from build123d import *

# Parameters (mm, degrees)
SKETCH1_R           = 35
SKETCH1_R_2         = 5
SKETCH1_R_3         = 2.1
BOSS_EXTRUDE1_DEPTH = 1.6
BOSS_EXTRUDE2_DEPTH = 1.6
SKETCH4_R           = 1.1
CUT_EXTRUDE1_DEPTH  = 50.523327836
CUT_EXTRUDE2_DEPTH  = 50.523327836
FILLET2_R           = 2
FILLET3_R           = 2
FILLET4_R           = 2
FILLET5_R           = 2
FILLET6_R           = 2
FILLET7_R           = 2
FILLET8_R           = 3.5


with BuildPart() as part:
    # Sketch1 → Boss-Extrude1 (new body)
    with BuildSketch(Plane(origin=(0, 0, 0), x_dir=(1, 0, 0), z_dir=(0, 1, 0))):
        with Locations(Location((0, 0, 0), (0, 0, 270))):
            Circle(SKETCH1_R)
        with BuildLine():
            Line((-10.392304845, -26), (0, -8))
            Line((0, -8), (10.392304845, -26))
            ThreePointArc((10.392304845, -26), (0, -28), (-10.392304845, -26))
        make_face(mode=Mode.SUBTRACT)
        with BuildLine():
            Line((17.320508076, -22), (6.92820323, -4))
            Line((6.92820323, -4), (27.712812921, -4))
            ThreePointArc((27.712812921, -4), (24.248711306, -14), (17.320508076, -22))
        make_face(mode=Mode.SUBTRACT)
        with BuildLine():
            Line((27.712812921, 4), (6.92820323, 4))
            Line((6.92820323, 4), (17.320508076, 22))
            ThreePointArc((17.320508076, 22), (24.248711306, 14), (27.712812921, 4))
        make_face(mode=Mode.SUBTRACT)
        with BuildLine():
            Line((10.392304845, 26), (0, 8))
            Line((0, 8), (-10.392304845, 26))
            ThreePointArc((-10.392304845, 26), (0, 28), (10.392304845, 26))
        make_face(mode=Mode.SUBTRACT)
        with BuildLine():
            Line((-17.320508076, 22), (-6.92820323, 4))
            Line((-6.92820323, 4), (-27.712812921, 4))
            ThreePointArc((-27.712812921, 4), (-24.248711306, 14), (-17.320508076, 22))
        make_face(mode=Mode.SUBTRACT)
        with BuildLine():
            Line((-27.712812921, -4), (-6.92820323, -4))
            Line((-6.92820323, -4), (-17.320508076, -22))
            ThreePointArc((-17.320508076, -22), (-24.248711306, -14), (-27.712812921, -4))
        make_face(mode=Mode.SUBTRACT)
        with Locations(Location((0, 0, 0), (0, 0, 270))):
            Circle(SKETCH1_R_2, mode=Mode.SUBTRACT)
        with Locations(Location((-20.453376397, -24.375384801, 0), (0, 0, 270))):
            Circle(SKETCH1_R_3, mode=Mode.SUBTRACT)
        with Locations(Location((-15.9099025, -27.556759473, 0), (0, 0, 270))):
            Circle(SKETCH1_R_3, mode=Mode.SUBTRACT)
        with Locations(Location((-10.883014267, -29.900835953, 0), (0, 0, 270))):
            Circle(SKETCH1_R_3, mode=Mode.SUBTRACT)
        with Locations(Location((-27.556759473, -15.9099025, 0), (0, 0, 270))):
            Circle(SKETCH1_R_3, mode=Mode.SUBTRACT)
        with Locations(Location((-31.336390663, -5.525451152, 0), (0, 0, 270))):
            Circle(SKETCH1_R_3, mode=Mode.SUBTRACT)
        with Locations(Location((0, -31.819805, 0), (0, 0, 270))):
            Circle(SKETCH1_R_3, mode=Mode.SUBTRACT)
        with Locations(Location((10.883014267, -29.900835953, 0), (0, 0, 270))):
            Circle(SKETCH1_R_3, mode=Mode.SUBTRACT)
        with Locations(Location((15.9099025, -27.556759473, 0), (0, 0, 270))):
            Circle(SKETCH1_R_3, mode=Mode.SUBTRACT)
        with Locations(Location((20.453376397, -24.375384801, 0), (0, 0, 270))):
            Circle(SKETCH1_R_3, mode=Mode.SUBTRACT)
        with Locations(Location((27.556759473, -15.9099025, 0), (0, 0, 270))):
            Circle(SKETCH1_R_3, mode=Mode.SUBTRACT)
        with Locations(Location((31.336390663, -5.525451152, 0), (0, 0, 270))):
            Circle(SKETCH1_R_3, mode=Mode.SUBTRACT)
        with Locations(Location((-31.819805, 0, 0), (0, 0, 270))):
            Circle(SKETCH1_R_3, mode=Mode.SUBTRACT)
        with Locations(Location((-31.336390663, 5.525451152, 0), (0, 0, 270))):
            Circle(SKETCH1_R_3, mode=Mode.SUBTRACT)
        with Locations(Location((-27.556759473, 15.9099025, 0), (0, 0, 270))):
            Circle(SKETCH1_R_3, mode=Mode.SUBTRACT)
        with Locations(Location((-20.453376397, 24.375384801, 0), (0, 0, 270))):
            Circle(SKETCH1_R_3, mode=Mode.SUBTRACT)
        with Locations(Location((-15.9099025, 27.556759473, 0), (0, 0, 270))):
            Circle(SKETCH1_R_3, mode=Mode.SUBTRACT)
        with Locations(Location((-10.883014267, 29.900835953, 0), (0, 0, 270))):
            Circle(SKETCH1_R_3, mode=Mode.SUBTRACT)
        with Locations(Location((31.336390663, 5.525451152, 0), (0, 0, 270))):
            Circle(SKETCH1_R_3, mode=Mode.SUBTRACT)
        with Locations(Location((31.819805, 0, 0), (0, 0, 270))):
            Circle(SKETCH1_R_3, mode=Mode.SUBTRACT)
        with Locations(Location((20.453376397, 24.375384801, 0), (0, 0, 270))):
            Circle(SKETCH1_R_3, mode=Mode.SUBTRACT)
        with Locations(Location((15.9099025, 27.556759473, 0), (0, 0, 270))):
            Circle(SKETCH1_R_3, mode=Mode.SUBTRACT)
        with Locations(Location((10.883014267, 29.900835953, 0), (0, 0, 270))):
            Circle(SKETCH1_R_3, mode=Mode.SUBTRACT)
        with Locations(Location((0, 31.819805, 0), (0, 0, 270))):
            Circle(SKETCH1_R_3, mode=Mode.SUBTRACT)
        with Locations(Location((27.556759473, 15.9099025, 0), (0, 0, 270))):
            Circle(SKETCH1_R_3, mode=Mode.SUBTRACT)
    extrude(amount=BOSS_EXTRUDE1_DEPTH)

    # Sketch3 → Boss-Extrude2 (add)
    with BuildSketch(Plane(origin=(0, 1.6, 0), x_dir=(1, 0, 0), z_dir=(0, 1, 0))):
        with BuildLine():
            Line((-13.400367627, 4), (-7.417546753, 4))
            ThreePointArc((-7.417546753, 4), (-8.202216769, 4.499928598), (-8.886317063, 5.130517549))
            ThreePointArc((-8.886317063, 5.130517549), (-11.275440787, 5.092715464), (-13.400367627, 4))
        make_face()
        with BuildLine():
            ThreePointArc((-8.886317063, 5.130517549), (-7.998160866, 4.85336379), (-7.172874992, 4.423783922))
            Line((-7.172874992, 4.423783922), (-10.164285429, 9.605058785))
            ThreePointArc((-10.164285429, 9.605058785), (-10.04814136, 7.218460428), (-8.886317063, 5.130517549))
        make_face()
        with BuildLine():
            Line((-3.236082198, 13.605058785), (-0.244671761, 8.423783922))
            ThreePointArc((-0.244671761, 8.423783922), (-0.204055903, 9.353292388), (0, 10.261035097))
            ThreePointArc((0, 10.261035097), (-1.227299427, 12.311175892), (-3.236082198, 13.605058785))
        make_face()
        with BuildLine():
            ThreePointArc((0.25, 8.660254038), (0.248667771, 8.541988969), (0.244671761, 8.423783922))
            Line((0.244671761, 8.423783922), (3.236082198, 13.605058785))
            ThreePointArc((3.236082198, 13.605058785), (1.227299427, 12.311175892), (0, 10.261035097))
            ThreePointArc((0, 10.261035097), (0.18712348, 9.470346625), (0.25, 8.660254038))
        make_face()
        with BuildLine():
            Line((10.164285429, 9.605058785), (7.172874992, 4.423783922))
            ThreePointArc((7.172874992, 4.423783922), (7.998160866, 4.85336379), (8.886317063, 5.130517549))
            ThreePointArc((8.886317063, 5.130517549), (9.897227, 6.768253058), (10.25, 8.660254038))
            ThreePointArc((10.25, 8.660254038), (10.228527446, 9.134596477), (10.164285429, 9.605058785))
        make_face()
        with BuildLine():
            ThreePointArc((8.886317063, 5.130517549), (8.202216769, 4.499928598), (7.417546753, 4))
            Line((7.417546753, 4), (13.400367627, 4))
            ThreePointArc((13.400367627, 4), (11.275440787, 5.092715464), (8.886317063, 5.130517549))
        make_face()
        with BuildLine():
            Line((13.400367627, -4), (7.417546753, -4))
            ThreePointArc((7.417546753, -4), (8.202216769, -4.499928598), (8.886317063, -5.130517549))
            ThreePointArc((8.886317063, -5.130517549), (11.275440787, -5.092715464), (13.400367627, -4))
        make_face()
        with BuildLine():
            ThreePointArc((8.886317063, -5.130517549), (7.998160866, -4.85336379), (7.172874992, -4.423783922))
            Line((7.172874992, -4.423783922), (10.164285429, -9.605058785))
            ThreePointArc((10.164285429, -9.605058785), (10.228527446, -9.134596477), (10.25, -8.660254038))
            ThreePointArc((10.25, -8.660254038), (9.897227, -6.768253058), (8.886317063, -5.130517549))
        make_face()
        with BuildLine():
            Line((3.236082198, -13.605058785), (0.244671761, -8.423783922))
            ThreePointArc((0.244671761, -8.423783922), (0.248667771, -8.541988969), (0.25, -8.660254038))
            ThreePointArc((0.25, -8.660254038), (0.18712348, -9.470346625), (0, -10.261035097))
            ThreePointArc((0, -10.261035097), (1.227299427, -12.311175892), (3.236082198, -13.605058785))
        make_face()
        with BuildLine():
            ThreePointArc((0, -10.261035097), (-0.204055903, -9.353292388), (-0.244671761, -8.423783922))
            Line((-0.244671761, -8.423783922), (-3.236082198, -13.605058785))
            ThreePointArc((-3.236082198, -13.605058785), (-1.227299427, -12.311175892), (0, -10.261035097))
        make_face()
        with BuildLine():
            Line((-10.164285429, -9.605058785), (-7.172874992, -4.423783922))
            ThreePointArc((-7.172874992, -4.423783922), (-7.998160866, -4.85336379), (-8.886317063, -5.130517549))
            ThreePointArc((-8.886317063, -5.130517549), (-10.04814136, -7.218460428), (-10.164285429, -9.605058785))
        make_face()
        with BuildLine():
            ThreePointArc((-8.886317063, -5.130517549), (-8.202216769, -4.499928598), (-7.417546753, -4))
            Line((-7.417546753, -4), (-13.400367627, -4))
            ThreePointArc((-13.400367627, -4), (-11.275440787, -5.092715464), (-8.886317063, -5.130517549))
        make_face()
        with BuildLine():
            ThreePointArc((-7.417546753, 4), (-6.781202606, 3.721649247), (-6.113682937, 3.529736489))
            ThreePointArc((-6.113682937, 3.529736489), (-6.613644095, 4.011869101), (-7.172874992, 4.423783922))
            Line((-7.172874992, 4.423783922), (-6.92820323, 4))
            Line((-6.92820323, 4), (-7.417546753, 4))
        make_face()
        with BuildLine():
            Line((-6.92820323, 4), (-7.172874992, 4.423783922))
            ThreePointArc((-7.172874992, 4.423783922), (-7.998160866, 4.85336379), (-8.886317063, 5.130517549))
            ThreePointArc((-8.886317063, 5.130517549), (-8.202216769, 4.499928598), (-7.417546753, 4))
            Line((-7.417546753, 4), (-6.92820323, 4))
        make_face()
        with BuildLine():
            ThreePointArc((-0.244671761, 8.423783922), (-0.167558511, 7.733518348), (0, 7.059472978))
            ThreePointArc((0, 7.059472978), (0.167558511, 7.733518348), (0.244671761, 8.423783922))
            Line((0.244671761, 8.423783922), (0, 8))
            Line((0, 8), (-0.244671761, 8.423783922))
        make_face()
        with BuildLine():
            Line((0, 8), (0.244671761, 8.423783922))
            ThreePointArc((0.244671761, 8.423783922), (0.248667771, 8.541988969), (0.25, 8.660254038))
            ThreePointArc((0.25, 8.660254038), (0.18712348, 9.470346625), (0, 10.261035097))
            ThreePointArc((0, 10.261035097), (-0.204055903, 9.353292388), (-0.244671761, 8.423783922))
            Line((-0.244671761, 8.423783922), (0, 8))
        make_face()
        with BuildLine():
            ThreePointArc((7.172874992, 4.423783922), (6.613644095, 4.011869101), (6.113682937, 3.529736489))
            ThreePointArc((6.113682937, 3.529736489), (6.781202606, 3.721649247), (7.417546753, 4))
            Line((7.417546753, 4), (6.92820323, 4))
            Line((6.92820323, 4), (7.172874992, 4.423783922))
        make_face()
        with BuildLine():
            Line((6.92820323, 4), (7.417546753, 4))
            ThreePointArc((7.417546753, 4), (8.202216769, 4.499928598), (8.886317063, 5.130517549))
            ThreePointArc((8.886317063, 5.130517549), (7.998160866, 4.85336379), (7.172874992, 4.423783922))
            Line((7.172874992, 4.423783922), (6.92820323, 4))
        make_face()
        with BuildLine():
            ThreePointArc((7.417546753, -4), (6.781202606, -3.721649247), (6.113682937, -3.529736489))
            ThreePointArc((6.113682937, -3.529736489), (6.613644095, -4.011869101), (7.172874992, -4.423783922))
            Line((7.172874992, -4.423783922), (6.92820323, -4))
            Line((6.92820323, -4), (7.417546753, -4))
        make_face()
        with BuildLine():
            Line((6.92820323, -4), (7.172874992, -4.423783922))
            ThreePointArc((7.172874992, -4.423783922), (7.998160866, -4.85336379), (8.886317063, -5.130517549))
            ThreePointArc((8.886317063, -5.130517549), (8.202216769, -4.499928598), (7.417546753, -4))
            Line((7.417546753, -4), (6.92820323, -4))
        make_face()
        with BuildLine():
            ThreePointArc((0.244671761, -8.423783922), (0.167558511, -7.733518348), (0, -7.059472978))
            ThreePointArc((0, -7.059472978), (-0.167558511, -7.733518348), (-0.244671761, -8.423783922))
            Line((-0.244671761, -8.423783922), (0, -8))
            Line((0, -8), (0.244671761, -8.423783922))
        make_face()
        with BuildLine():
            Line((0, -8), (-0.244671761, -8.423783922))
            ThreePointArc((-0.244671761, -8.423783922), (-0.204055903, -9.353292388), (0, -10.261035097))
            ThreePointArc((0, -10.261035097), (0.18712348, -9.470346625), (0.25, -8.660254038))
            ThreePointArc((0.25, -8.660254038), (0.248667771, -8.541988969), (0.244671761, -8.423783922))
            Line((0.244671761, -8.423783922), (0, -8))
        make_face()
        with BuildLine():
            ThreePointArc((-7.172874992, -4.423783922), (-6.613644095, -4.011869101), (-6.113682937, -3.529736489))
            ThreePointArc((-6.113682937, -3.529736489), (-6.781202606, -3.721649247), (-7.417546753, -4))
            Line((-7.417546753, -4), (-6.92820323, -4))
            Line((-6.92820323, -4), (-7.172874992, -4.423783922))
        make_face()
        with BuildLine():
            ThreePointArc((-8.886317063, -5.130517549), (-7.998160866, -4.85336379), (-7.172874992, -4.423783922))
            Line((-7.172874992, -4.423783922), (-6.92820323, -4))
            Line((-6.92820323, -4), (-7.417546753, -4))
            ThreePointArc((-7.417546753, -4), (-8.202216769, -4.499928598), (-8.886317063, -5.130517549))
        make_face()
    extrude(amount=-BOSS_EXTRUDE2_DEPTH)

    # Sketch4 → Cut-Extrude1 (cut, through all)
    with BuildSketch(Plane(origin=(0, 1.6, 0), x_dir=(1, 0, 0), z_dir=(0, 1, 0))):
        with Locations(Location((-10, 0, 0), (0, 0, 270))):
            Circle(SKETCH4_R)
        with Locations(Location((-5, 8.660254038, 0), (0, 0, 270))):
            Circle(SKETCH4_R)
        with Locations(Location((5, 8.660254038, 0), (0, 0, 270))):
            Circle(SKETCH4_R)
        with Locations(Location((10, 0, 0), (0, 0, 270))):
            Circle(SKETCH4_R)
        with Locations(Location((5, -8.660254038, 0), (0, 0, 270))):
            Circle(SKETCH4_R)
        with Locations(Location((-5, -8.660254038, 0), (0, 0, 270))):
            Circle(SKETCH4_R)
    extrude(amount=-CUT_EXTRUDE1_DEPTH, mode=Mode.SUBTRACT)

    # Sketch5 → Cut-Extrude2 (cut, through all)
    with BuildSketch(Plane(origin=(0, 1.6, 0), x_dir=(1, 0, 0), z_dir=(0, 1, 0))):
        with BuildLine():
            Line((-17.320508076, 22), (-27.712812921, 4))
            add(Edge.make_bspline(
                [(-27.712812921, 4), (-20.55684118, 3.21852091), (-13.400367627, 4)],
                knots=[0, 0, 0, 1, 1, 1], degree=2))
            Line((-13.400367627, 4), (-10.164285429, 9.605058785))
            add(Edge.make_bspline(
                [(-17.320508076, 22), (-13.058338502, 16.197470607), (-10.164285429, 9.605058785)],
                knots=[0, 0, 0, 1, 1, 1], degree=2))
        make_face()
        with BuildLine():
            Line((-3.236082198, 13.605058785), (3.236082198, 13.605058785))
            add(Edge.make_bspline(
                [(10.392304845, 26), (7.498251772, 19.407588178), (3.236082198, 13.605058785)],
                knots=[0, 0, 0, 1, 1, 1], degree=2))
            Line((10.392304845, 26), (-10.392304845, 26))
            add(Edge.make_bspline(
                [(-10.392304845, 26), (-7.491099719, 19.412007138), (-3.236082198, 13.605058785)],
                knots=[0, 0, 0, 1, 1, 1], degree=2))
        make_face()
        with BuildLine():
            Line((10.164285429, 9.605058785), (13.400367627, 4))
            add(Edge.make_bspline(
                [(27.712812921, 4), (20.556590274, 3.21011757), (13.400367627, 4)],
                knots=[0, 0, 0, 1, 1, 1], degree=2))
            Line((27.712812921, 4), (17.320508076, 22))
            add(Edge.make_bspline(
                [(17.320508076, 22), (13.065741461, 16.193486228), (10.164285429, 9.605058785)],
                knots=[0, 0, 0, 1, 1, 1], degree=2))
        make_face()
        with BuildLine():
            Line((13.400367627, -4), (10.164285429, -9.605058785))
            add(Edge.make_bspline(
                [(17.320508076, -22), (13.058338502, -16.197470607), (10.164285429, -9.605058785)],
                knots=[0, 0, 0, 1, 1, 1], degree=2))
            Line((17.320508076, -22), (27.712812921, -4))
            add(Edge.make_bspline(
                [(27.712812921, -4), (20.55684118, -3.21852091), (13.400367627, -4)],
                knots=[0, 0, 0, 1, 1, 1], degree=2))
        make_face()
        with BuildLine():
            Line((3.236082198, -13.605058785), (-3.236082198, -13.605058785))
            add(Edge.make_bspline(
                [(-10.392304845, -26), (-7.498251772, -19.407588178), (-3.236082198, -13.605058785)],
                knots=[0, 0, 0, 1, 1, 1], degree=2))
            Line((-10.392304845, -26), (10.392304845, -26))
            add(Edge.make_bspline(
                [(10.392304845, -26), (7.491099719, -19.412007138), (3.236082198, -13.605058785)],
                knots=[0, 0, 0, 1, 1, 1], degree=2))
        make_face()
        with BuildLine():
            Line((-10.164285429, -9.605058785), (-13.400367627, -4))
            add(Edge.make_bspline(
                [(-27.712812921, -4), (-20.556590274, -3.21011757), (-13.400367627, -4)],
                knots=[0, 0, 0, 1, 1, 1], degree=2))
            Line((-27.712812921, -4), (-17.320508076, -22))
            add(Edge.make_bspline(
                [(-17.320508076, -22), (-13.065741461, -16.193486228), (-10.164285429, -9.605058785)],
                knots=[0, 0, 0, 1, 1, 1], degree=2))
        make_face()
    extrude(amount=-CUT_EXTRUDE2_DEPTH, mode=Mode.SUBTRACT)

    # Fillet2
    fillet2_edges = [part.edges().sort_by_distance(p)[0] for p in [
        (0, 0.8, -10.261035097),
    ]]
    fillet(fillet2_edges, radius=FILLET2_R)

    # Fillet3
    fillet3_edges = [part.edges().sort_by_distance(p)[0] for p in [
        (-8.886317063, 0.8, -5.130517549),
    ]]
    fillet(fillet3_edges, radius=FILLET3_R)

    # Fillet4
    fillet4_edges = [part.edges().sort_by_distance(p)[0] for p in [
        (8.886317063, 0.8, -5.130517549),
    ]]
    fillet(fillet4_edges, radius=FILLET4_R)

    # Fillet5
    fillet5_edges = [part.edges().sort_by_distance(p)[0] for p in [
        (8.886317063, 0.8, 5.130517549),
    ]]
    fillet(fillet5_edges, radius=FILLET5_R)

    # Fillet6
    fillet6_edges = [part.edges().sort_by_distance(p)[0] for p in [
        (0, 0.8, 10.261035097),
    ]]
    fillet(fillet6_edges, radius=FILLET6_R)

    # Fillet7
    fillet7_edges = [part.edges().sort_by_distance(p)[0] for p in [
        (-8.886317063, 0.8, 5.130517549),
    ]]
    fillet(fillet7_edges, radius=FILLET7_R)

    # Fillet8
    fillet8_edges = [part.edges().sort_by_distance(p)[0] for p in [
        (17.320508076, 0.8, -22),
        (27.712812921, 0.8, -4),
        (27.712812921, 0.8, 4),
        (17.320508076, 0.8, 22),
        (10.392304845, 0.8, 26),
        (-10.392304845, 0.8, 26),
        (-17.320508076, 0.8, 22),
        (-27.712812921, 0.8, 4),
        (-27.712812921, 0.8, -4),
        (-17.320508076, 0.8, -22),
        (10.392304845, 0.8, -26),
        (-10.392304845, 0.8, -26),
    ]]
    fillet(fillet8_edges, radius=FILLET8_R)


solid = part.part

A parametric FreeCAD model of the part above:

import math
import FreeCAD as App
import Part
import Sketcher
from FreeCAD import Vector
Q = App.Units.Quantity


def edges_at(feature, points):
    """Names of the edges that pass closest to the given points."""
    edges = feature.Shape.Edges
    near = lambda p: min(range(len(edges)), key=lambda i: edges[i].distToShape(Part.Vertex(*p))[0])
    return sorted({f"Edge{near(p) + 1}" for p in points})

doc = App.newDocument("Part")
params = doc.addObject("Spreadsheet::Sheet", "Params")
for row, (alias, value) in enumerate([
    ("sketch1_diameter", "70 mm"),
    ("sketch1_diameter2", "10 mm"),
    ("sketch1_radius", "28 mm"),
    ("sketch1_diameter3", "4.2 mm"),
    ("pad1_length", "1.6 mm"),
    ("sketch2_radius", "5.25 mm"),
    ("pad2_length", "1.6 mm"),
    ("sketch3_diameter", "2.2 mm"),
    ("fillet_radius", "2 mm"),
    ("fillet2_radius", "2 mm"),
    ("fillet3_radius", "2 mm"),
    ("fillet4_radius", "2 mm"),
    ("fillet5_radius", "2 mm"),
    ("fillet6_radius", "2 mm"),
    ("fillet7_radius", "3.5 mm"),
], start=1):
    params.set(f"A{row}", alias)
    params.set(f"B{row}", "=" + value)
    params.setAlias(f"B{row}", alias)

body = doc.addObject("PartDesign::Body", "Body")

# Sketch on XZ plane
sketch1 = body.newObject("Sketcher::SketchObject", "Sketch")
sketch1.AttachmentSupport = (doc.getObject("XZ_Plane"), [""])
sketch1.MapMode = "FlatFace"
sketch1.addGeometry([
    Part.Circle(Vector(0, 0, 0), Vector(0, 0, 1), 35),  # 0
    Part.Circle(Vector(-20.5, -24.4, 0), Vector(0, 0, 1), 2.1),  # 1
    Part.Circle(Vector(-27.6, -15.9, 0), Vector(0, 0, 1), 2.1),  # 2
    Part.Circle(Vector(-31.3, -5.5, 0), Vector(0, 0, 1), 2.1),  # 3
    Part.ArcOfCircle(Part.Circle(Vector(0, 0, 0), Vector(0, 0, 1), 28), math.radians(-172), math.radians(-128)),  # 4
    Part.LineSegment(Vector(-17.3, -22, 0), Vector(-6.9, -4, 0)),  # 5
    Part.LineSegment(Vector(-6.9, -4, 0), Vector(-27.7, -4, 0)),  # 6
    Part.Circle(Vector(-15.9, -27.6, 0), Vector(0, 0, 1), 2.1),  # 7
    Part.Circle(Vector(-10.9, -29.9, 0), Vector(0, 0, 1), 2.1),  # 8
    Part.Circle(Vector(-31.8, 0, 0), Vector(0, 0, 1), 2.1),  # 9
    Part.Circle(Vector(-31.3, 5.5, 0), Vector(0, 0, 1), 2.1),  # 10
    Part.Circle(Vector(-27.6, 15.9, 0), Vector(0, 0, 1), 2.1),  # 11
    Part.ArcOfCircle(Part.Circle(Vector(0, 0, 0), Vector(0, 0, 1), 28), math.radians(128), math.radians(172)),  # 12
    Part.LineSegment(Vector(-27.7, 4, 0), Vector(-6.9, 4, 0)),  # 13
    Part.LineSegment(Vector(-6.9, 4, 0), Vector(-17.3, 22, 0)),  # 14
    Part.Circle(Vector(-20.5, 24.4, 0), Vector(0, 0, 1), 2.1),  # 15
    Part.Circle(Vector(-15.9, 27.6, 0), Vector(0, 0, 1), 2.1),  # 16
    Part.Circle(Vector(-10.9, 29.9, 0), Vector(0, 0, 1), 2.1),  # 17
    Part.Circle(Vector(0, -31.8, 0), Vector(0, 0, 1), 2.1),  # 18
    Part.ArcOfCircle(Part.Circle(Vector(0, 0, 0), Vector(0, 0, 1), 28), math.radians(-112), math.radians(-68)),  # 19
    Part.LineSegment(Vector(10.4, -26, 0), Vector(0, -8, 0)),  # 20
    Part.LineSegment(Vector(0, -8, 0), Vector(-10.4, -26, 0)),  # 21
    Part.Circle(Vector(10.9, -29.9, 0), Vector(0, 0, 1), 2.1),  # 22
    Part.Circle(Vector(15.9, -27.6, 0), Vector(0, 0, 1), 2.1),  # 23
    Part.Circle(Vector(20.5, -24.4, 0), Vector(0, 0, 1), 2.1),  # 24
    Part.ArcOfCircle(Part.Circle(Vector(0, 0, 0), Vector(0, 0, 1), 28), math.radians(-52), math.radians(-8)),  # 25
    Part.LineSegment(Vector(27.7, -4, 0), Vector(6.9, -4, 0)),  # 26
    Part.LineSegment(Vector(6.9, -4, 0), Vector(17.3, -22, 0)),  # 27
    Part.Circle(Vector(27.6, -15.9, 0), Vector(0, 0, 1), 2.1),  # 28
    Part.Circle(Vector(31.3, -5.5, 0), Vector(0, 0, 1), 2.1),  # 29
    Part.Circle(Vector(31.8, 0, 0), Vector(0, 0, 1), 2.1),  # 30
    Part.Circle(Vector(0, 0, 0), Vector(0, 0, 1), 5),  # 31
    Part.ArcOfCircle(Part.Circle(Vector(0, 0, 0), Vector(0, 0, 1), 28), math.radians(68), math.radians(112)),  # 32
    Part.LineSegment(Vector(-10.4, 26, 0), Vector(0, 8, 0)),  # 33
    Part.LineSegment(Vector(0, 8, 0), Vector(10.4, 26, 0)),  # 34
    Part.Circle(Vector(0, 31.8, 0), Vector(0, 0, 1), 2.1),  # 35
    Part.Circle(Vector(10.9, 29.9, 0), Vector(0, 0, 1), 2.1),  # 36
    Part.Circle(Vector(15.9, 27.6, 0), Vector(0, 0, 1), 2.1),  # 37
    Part.ArcOfCircle(Part.Circle(Vector(0, 0, 0), Vector(0, 0, 1), 28), math.radians(8), math.radians(52)),  # 38
    Part.LineSegment(Vector(17.3, 22, 0), Vector(6.9, 4, 0)),  # 39
    Part.LineSegment(Vector(6.9, 4, 0), Vector(27.7, 4, 0)),  # 40
    Part.Circle(Vector(31.3, 5.5, 0), Vector(0, 0, 1), 2.1),  # 41
    Part.Circle(Vector(27.6, 15.9, 0), Vector(0, 0, 1), 2.1),  # 42
    Part.Circle(Vector(20.5, 24.4, 0), Vector(0, 0, 1), 2.1),  # 43
], False)
sketch1.addConstraint([
    Sketcher.Constraint("Coincident", 4, 2, 5, 1),
    Sketcher.Constraint("Coincident", 5, 2, 6, 1),
    Sketcher.Constraint("Coincident", 6, 2, 4, 1),
    Sketcher.Constraint("Coincident", 12, 2, 13, 1),
    Sketcher.Constraint("Coincident", 13, 2, 14, 1),
    Sketcher.Constraint("Coincident", 14, 2, 12, 1),
    Sketcher.Constraint("Coincident", 19, 2, 20, 1),
    Sketcher.Constraint("Coincident", 20, 2, 21, 1),
    Sketcher.Constraint("Coincident", 21, 2, 19, 1),
    Sketcher.Constraint("Coincident", 25, 2, 26, 1),
    Sketcher.Constraint("Coincident", 26, 2, 27, 1),
    Sketcher.Constraint("Coincident", 27, 2, 25, 1),
    Sketcher.Constraint("Coincident", 32, 2, 33, 1),
    Sketcher.Constraint("Coincident", 33, 2, 34, 1),
    Sketcher.Constraint("Coincident", 34, 2, 32, 1),
    Sketcher.Constraint("Coincident", 38, 2, 39, 1),
    Sketcher.Constraint("Coincident", 39, 2, 40, 1),
    Sketcher.Constraint("Coincident", 40, 2, 38, 1),
    Sketcher.Constraint("Horizontal", 6),
    Sketcher.Constraint("Horizontal", 13),
    Sketcher.Constraint("Horizontal", 26),
    Sketcher.Constraint("Horizontal", 40),
    Sketcher.Constraint("Coincident", 0, 3, -1, 1),
    Sketcher.Constraint("Coincident", 4, 3, -1, 1),
    Sketcher.Constraint("Coincident", 12, 3, -1, 1),
    Sketcher.Constraint("Coincident", 19, 3, -1, 1),
    Sketcher.Constraint("Coincident", 25, 3, -1, 1),
    Sketcher.Constraint("Coincident", 31, 3, -1, 1),
    Sketcher.Constraint("Coincident", 32, 3, -1, 1),
    Sketcher.Constraint("Coincident", 38, 3, -1, 1),
    Sketcher.Constraint("Equal", 1, 2),
    Sketcher.Constraint("Equal", 2, 3),
    Sketcher.Constraint("Equal", 3, 7),
    Sketcher.Constraint("Equal", 7, 8),
    Sketcher.Constraint("Equal", 8, 9),
    Sketcher.Constraint("Equal", 9, 10),
    Sketcher.Constraint("Equal", 10, 11),
    Sketcher.Constraint("Equal", 4, 12),
    Sketcher.Constraint("Equal", 11, 15),
    Sketcher.Constraint("Equal", 15, 16),
    Sketcher.Constraint("Equal", 16, 17),
    Sketcher.Constraint("Equal", 17, 18),
    Sketcher.Constraint("Equal", 12, 19),
    Sketcher.Constraint("Equal", 18, 22),
    Sketcher.Constraint("Equal", 22, 23),
    Sketcher.Constraint("Equal", 23, 24),
    Sketcher.Constraint("Equal", 19, 25),
    Sketcher.Constraint("Equal", 24, 28),
    Sketcher.Constraint("Equal", 28, 29),
    Sketcher.Constraint("Equal", 29, 30),
    Sketcher.Constraint("Equal", 25, 32),
    Sketcher.Constraint("Equal", 30, 35),
    Sketcher.Constraint("Equal", 35, 36),
    Sketcher.Constraint("Equal", 36, 37),
    Sketcher.Constraint("Equal", 32, 38),
    Sketcher.Constraint("Equal", 37, 41),
    Sketcher.Constraint("Equal", 41, 42),
    Sketcher.Constraint("Equal", 42, 43),
    Sketcher.Constraint("Symmetric", 17, 3, 22, 3, -1, 1),
    Sketcher.Constraint("Symmetric", 16, 3, 23, 3, -1, 1),
    Sketcher.Constraint("Symmetric", 15, 3, 24, 3, -1, 1),
    Sketcher.Constraint("Symmetric", 11, 3, 28, 3, -1, 1),
    Sketcher.Constraint("Symmetric", 10, 3, 29, 3, -1, 1),
    Sketcher.Constraint("Symmetric", 9, 3, 30, 3, -1, 1),
    Sketcher.Constraint("Symmetric", 18, 3, 35, 3, -1, 1),
    Sketcher.Constraint("Symmetric", 8, 3, 36, 3, -1, 1),
    Sketcher.Constraint("Symmetric", 7, 3, 37, 3, -1, 1),
    Sketcher.Constraint("Symmetric", 3, 3, 41, 3, -1, 1),
    Sketcher.Constraint("Symmetric", 2, 3, 42, 3, -1, 1),
    Sketcher.Constraint("Symmetric", 1, 3, 43, 3, -1, 1),
    Sketcher.Constraint("Symmetric", 13, 2, 26, 2, -1, 1),
    Sketcher.Constraint("Symmetric", 20, 2, 33, 2, -1, 1),
    Sketcher.Constraint("Symmetric", 5, 2, 39, 2, -1, 1),
    Sketcher.Constraint("Symmetric", 8, 3, 22, 3, -2),
    Sketcher.Constraint("Symmetric", 7, 3, 23, 3, -2),
    Sketcher.Constraint("Symmetric", 1, 3, 24, 3, -2),
    Sketcher.Constraint("Symmetric", 2, 3, 28, 3, -2),
    Sketcher.Constraint("Symmetric", 3, 3, 29, 3, -2),
    Sketcher.Constraint("Symmetric", 5, 2, 26, 2, -2),
    Sketcher.Constraint("PointOnObject", 9, 3, -1),
    Sketcher.Constraint("PointOnObject", 18, 3, -2),
    Sketcher.Constraint("PointOnObject", 20, 2, -2),
    Sketcher.Constraint("Parallel", 14, 20),
    Sketcher.Constraint("Parallel", 5, 21),
    Sketcher.Constraint("Parallel", 20, 27),
    Sketcher.Constraint("Parallel", 27, 33),
    Sketcher.Constraint("Parallel", 21, 34),
    Sketcher.Constraint("Parallel", 34, 39),
    Sketcher.Constraint("Horizontal", 19, 2, 21, 2),
    Sketcher.Constraint("Equal", 14, 20),
    Sketcher.Constraint("Diameter", 0, Q("70 mm")),
    Sketcher.Constraint("Diameter", 31, Q("10 mm")),
    Sketcher.Constraint("Radius", 4, Q("28 mm")),
    Sketcher.Constraint("Diameter", 1, Q("4.2 mm")),
    Sketcher.Constraint("Angle", 5, Q("60 deg")),
    Sketcher.Constraint("DistanceY", 4, 2, -1, 1, Q("22 mm")),
    Sketcher.Constraint("DistanceY", 5, 2, -1, 1, Q("4 mm")),
    Sketcher.Constraint("DistanceX", 2, 3, -1, 1, Q("27.556759 mm")),
    Sketcher.Constraint("DistanceX", 3, 3, -1, 1, Q("31.336391 mm")),
    Sketcher.Constraint("DistanceY", 3, 3, -1, 1, Q("5.525451 mm")),
    Sketcher.Constraint("DistanceY", 7, 3, -1, 1, Q("27.556759 mm")),
    Sketcher.Constraint("DistanceY", 2, 3, 3, 3, Q("10.384451 mm")),
    Sketcher.Constraint("DistanceX", 3, 3, 7, 3, Q("15.426488 mm")),
    Sketcher.Constraint("DistanceX", 7, 3, 8, 3, Q("5.026888 mm")),
    Sketcher.Constraint("DistanceY", 8, 3, 1, 3, Q("5.525451 mm")),
    Sketcher.Constraint("DistanceX", 9, 3, 1, 3, Q("11.366429 mm")),
    Sketcher.Constraint("DistanceY", 18, 3, 8, 3, Q("1.918969 mm")),
    Sketcher.Constraint("DistanceX", 1, 3, 4, 2, Q("3.132868 mm")),
    Sketcher.Constraint("DistanceY", 1, 3, -1, 1, Q("24.375385 mm")),
])
sketch1.setExpression("Constraints[90]", "Params.sketch1_diameter")
sketch1.setExpression("Constraints[91]", "Params.sketch1_diameter2")
sketch1.setExpression("Constraints[92]", "Params.sketch1_radius")
sketch1.setExpression("Constraints[93]", "Params.sketch1_diameter3")
pad1 = body.newObject("PartDesign::Pad", "Pad")
pad1.Profile = sketch1
pad1.setExpression("Length", "Params.pad1_length")
pad1.Reversed = True

# Sketch on XZ plane
sketch2 = body.newObject("Sketcher::SketchObject", "Sketch001")
sketch2.AttachmentSupport = (doc.getObject("XZ_Plane"), [""])
sketch2.MapMode = "FlatFace"
sketch2.AttachmentOffset = App.Placement(Vector(0, 0, -1.6), App.Rotation())
sketch2.addGeometry([
    Part.LineSegment(Vector(-13.4, -4, 0), Vector(-7.4, -4, 0)),  # 0
    Part.ArcOfCircle(Part.Circle(Vector(-5, -8.7, 0), Vector(0, 0, 1), 5.2), math.radians(102.25), math.radians(117.42)),  # 1
    Part.ArcOfCircle(Part.Circle(Vector(-10, 0, 0), Vector(0, 0, 1), 5.2), math.radians(-57.42), math.radians(-42.25)),  # 2
    Part.LineSegment(Vector(-7.2, -4.4, 0), Vector(-10.2, -9.6, 0)),  # 3
    Part.ArcOfCircle(Part.Circle(Vector(-5, -8.7, 0), Vector(0, 0, 1), 5.2), math.radians(138), math.radians(190)),  # 4
    Part.ArcOfCircle(Part.Circle(Vector(-10, 0, 0), Vector(0, 0, 1), 5.3), math.radians(-130), math.radians(-78)),  # 5
    Part.LineSegment(Vector(-3.2, -13.6, 0), Vector(-0.2, -8.4, 0)),  # 6
    Part.ArcOfCircle(Part.Circle(Vector(5, -8.7, 0), Vector(0, 0, 1), 5.2), math.radians(162.25), math.radians(177.42)),  # 7
    Part.ArcOfCircle(Part.Circle(Vector(-5, -8.7, 0), Vector(0, 0, 1), 5.2), math.radians(2.58), math.radians(17.75)),  # 8
    Part.LineSegment(Vector(0.2, -8.4, 0), Vector(3.2, -13.6, 0)),  # 9
    Part.ArcOfCircle(Part.Circle(Vector(5, -8.7, 0), Vector(0, 0, 1), 5.3), math.radians(-162), math.radians(-110)),  # 10
    Part.ArcOfCircle(Part.Circle(Vector(-5, -8.7, 0), Vector(0, 0, 1), 5.3), math.radians(-70), math.radians(-18)),  # 11
    Part.LineSegment(Vector(10.2, -9.6, 0), Vector(7.2, -4.4, 0)),  # 12
    Part.ArcOfCircle(Part.Circle(Vector(10, 0, 0), Vector(0, 0, 1), 5.2), math.radians(-137.75), math.radians(-122.58)),  # 13
    Part.ArcOfCircle(Part.Circle(Vector(5, -8.7, 0), Vector(0, 0, 1), 5.2), math.radians(62.58), math.radians(77.75)),  # 14
    Part.LineSegment(Vector(7.4, -4, 0), Vector(13.4, -4, 0)),  # 15
    Part.ArcOfCircle(Part.Circle(Vector(10, 0, 0), Vector(0, 0, 1), 5.3), math.radians(-102), math.radians(-50)),  # 16
    Part.ArcOfCircle(Part.Circle(Vector(5, -8.7, 0), Vector(0, 0, 1), 5.2), math.radians(0), math.radians(42)),  # 17
    Part.ArcOfCircle(Part.Circle(Vector(5, -8.7, 0), Vector(0, 0, 1), 5.2), math.radians(-10.37), math.radians(0)),  # 18
    Part.LineSegment(Vector(13.4, 4, 0), Vector(7.4, 4, 0)),  # 19
    Part.ArcOfCircle(Part.Circle(Vector(5, 8.7, 0), Vector(0, 0, 1), 5.2), math.radians(-77.75), math.radians(-62.58)),  # 20
    Part.ArcOfCircle(Part.Circle(Vector(10, 0, 0), Vector(0, 0, 1), 5.2), math.radians(122.58), math.radians(137.75)),  # 21
    Part.LineSegment(Vector(7.2, 4.4, 0), Vector(10.2, 9.6, 0)),  # 22
    Part.ArcOfCircle(Part.Circle(Vector(5, 8.7, 0), Vector(0, 0, 1), 5.2), math.radians(0), math.radians(10.37)),  # 23
    Part.ArcOfCircle(Part.Circle(Vector(5, 8.7, 0), Vector(0, 0, 1), 5.2), math.radians(-42), math.radians(0)),  # 24
    Part.ArcOfCircle(Part.Circle(Vector(10, 0, 0), Vector(0, 0, 1), 5.3), math.radians(50), math.radians(102)),  # 25
    Part.LineSegment(Vector(3.2, 13.6, 0), Vector(0.2, 8.4, 0)),  # 26
    Part.ArcOfCircle(Part.Circle(Vector(-5, 8.7, 0), Vector(0, 0, 1), 5.2), math.radians(-17.75), math.radians(-2.58)),  # 27
    Part.ArcOfCircle(Part.Circle(Vector(5, 8.7, 0), Vector(0, 0, 1), 5.2), math.radians(-177.42), math.radians(-162.25)),  # 28
    Part.LineSegment(Vector(-0.2, 8.4, 0), Vector(-3.2, 13.6, 0)),  # 29
    Part.ArcOfCircle(Part.Circle(Vector(-5, 8.7, 0), Vector(0, 0, 1), 5.3), math.radians(18), math.radians(70)),  # 30
    Part.ArcOfCircle(Part.Circle(Vector(5, 8.7, 0), Vector(0, 0, 1), 5.3), math.radians(110), math.radians(162)),  # 31
    Part.LineSegment(Vector(-10.2, 9.6, 0), Vector(-7.2, 4.4, 0)),  # 32
    Part.ArcOfCircle(Part.Circle(Vector(-10, 0, 0), Vector(0, 0, 1), 5.2), math.radians(42.25), math.radians(57.42)),  # 33
    Part.ArcOfCircle(Part.Circle(Vector(-5, 8.7, 0), Vector(0, 0, 1), 5.2), math.radians(-117.42), math.radians(-102.25)),  # 34
    Part.LineSegment(Vector(-7.4, 4, 0), Vector(-13.4, 4, 0)),  # 35
    Part.ArcOfCircle(Part.Circle(Vector(-10, 0, 0), Vector(0, 0, 1), 5.3), math.radians(78), math.radians(130)),  # 36
    Part.ArcOfCircle(Part.Circle(Vector(-5, 8.7, 0), Vector(0, 0, 1), 5.2), math.radians(170), math.radians(222)),  # 37
], False)
sketch2.addConstraint([
    Sketcher.Constraint("Coincident", 0, 2, 1, 2),
    Sketcher.Constraint("Coincident", 1, 1, 2, 2),
    Sketcher.Constraint("Coincident", 2, 1, 3, 1),
    Sketcher.Constraint("Coincident", 3, 2, 4, 2),
    Sketcher.Constraint("Coincident", 4, 1, 5, 2),
    Sketcher.Constraint("Coincident", 5, 1, 0, 1),
    Sketcher.Constraint("Coincident", 6, 2, 7, 2),
    Sketcher.Constraint("Coincident", 7, 1, 8, 2),
    Sketcher.Constraint("Coincident", 8, 1, 9, 1),
    Sketcher.Constraint("Coincident", 9, 2, 10, 2),
    Sketcher.Constraint("Coincident", 10, 1, 11, 2),
    Sketcher.Constraint("Coincident", 11, 1, 6, 1),
    Sketcher.Constraint("Coincident", 12, 2, 13, 2),
    Sketcher.Constraint("Coincident", 13, 1, 14, 2),
    Sketcher.Constraint("Coincident", 14, 1, 15, 1),
    Sketcher.Constraint("Coincident", 15, 2, 16, 2),
    Sketcher.Constraint("Coincident", 16, 1, 17, 2),
    Sketcher.Constraint("Tangent", 17, 1, 18, 2),
    Sketcher.Constraint("Coincident", 18, 1, 12, 1),
    Sketcher.Constraint("Coincident", 19, 2, 20, 2),
    Sketcher.Constraint("Coincident", 20, 1, 21, 2),
    Sketcher.Constraint("Coincident", 21, 1, 22, 1),
    Sketcher.Constraint("Coincident", 22, 2, 23, 2),
    Sketcher.Constraint("Tangent", 23, 1, 24, 2),
    Sketcher.Constraint("Coincident", 24, 1, 25, 2),
    Sketcher.Constraint("Coincident", 25, 1, 19, 1),
    Sketcher.Constraint("Coincident", 26, 2, 27, 2),
    Sketcher.Constraint("Coincident", 27, 1, 28, 2),
    Sketcher.Constraint("Coincident", 28, 1, 29, 1),
    Sketcher.Constraint("Coincident", 29, 2, 30, 2),
    Sketcher.Constraint("Coincident", 30, 1, 31, 2),
    Sketcher.Constraint("Coincident", 31, 1, 26, 1),
    Sketcher.Constraint("Coincident", 32, 2, 33, 2),
    Sketcher.Constraint("Coincident", 33, 1, 34, 2),
    Sketcher.Constraint("Coincident", 34, 1, 35, 1),
    Sketcher.Constraint("Coincident", 35, 2, 36, 2),
    Sketcher.Constraint("Coincident", 36, 1, 37, 2),
    Sketcher.Constraint("Coincident", 37, 1, 32, 1),
    Sketcher.Constraint("Horizontal", 0),
    Sketcher.Constraint("Horizontal", 15),
    Sketcher.Constraint("Horizontal", 19),
    Sketcher.Constraint("Horizontal", 35),
    Sketcher.Constraint("Coincident", 4, 3, 1, 3),
    Sketcher.Constraint("Coincident", 5, 3, 2, 3),
    Sketcher.Constraint("Coincident", 8, 3, 1, 3),
    Sketcher.Constraint("Coincident", 10, 3, 7, 3),
    Sketcher.Constraint("Coincident", 11, 3, 1, 3),
    Sketcher.Constraint("Coincident", 14, 3, 7, 3),
    Sketcher.Constraint("Coincident", 16, 3, 13, 3),
    Sketcher.Constraint("Coincident", 17, 3, 7, 3),
    Sketcher.Constraint("Coincident", 21, 3, 13, 3),
    Sketcher.Constraint("Coincident", 23, 3, 20, 3),
    Sketcher.Constraint("Coincident", 25, 3, 13, 3),
    Sketcher.Constraint("Coincident", 28, 3, 20, 3),
    Sketcher.Constraint("Coincident", 30, 3, 27, 3),
    Sketcher.Constraint("Coincident", 31, 3, 20, 3),
    Sketcher.Constraint("Coincident", 33, 3, 2, 3),
    Sketcher.Constraint("Coincident", 34, 3, 27, 3),
    Sketcher.Constraint("Coincident", 36, 3, 2, 3),
    Sketcher.Constraint("Coincident", 37, 3, 27, 3),
    Sketcher.Constraint("Equal", 1, 2),
    Sketcher.Constraint("Equal", 2, 4),
    Sketcher.Constraint("Equal", 4, 5),
    Sketcher.Constraint("Equal", 5, 7),
    Sketcher.Constraint("Equal", 7, 8),
    Sketcher.Constraint("Equal", 8, 10),
    Sketcher.Constraint("Equal", 10, 11),
    Sketcher.Constraint("Equal", 11, 13),
    Sketcher.Constraint("Equal", 13, 14),
    Sketcher.Constraint("Equal", 14, 16),
    Sketcher.Constraint("Equal", 16, 17),
    Sketcher.Constraint("Equal", 17, 18),
    Sketcher.Constraint("Equal", 18, 20),
    Sketcher.Constraint("Equal", 20, 21),
    Sketcher.Constraint("Equal", 21, 23),
    Sketcher.Constraint("Equal", 23, 24),
    Sketcher.Constraint("Equal", 24, 25),
    Sketcher.Constraint("Equal", 25, 27),
    Sketcher.Constraint("Equal", 27, 28),
    Sketcher.Constraint("Equal", 28, 30),
    Sketcher.Constraint("Equal", 30, 31),
    Sketcher.Constraint("Equal", 31, 33),
    Sketcher.Constraint("Equal", 33, 34),
    Sketcher.Constraint("Equal", 34, 36),
    Sketcher.Constraint("Equal", 36, 37),
    Sketcher.Constraint("Symmetric", 2, 3, 13, 3, -1, 1),
    Sketcher.Constraint("Symmetric", 1, 3, 20, 3, -1, 1),
    Sketcher.Constraint("Symmetric", 7, 3, 27, 3, -1, 1),
    Sketcher.Constraint("Symmetric", 1, 3, 7, 3, -2),
    Sketcher.Constraint("Symmetric", 2, 1, 12, 2, -2),
    Sketcher.Constraint("Parallel", 3, 6),
    Sketcher.Constraint("Parallel", 9, 12),
    Sketcher.Constraint("Parallel", 6, 22),
    Sketcher.Constraint("Parallel", 22, 26),
    Sketcher.Constraint("Parallel", 12, 29),
    Sketcher.Constraint("Parallel", 29, 32),
    Sketcher.Constraint("Horizontal", 6, 2, 8, 1),
    Sketcher.Constraint("Horizontal", 9, 2, 11, 1),
    Sketcher.Constraint("Horizontal", 5, 1, 14, 1),
    Sketcher.Constraint("Horizontal", 18, 3, 17, 1),
    Sketcher.Constraint("Horizontal", 37, 3, 23, 1),
    Sketcher.Constraint("Horizontal", 26, 2, 28, 1),
    Sketcher.Constraint("Horizontal", 21, 1, 32, 2),
    Sketcher.Constraint("Horizontal", 25, 1, 34, 1),
    Sketcher.Constraint("Vertical", 14, 1, 19, 2),
    Sketcher.Constraint("Vertical", 12, 2, 21, 1),
    Sketcher.Constraint("Vertical", 8, 1, 26, 2),
    Sketcher.Constraint("Equal", 3, 6),
    Sketcher.Constraint("Angle", 3, Q("-120 deg")),
    Sketcher.Constraint("Radius", 1, Q("5.25 mm")),
    Sketcher.Constraint("DistanceX", 1, 3, -1, 1, Q("5 mm")),
    Sketcher.Constraint("DistanceX", 2, 3, -1, 1, Q("10 mm")),
    Sketcher.Constraint("DistanceY", 0, 2, -1, 1, Q("4 mm")),
    Sketcher.Constraint("DistanceX", 0, 1, 0, 2, Q("5.982821 mm")),
    Sketcher.Constraint("Distance", 3, Q("5.982821 mm")),
])
sketch2.setExpression("Constraints[109]", "Params.sketch2_radius")
pad2 = body.newObject("PartDesign::Pad", "Pad001")
pad2.Profile = sketch2
pad2.setExpression("Length", "Params.pad2_length")

# Sketch on XZ plane
sketch3 = body.newObject("Sketcher::SketchObject", "Sketch002")
sketch3.AttachmentSupport = (doc.getObject("XZ_Plane"), [""])
sketch3.MapMode = "FlatFace"
sketch3.AttachmentOffset = App.Placement(Vector(0, 0, -1.6), App.Rotation())
sketch3.addGeometry([
    Part.Circle(Vector(-10, 0, 0), Vector(0, 0, 1), 1.1),  # 0
    Part.Circle(Vector(-5, -8.7, 0), Vector(0, 0, 1), 1.1),  # 1
    Part.Circle(Vector(5, -8.7, 0), Vector(0, 0, 1), 1.1),  # 2
    Part.Circle(Vector(10, 0, 0), Vector(0, 0, 1), 1.1),  # 3
    Part.Circle(Vector(5, 8.7, 0), Vector(0, 0, 1), 1.1),  # 4
    Part.Circle(Vector(-5, 8.7, 0), Vector(0, 0, 1), 1.1),  # 5
], False)
sketch3.addConstraint([
    Sketcher.Constraint("Equal", 0, 1),
    Sketcher.Constraint("Equal", 1, 2),
    Sketcher.Constraint("Equal", 2, 3),
    Sketcher.Constraint("Equal", 3, 4),
    Sketcher.Constraint("Equal", 4, 5),
    Sketcher.Constraint("Symmetric", 0, 3, 3, 3, -1, 1),
    Sketcher.Constraint("Symmetric", 1, 3, 4, 3, -1, 1),
    Sketcher.Constraint("Symmetric", 2, 3, 5, 3, -1, 1),
    Sketcher.Constraint("Symmetric", 1, 3, 2, 3, -2),
    Sketcher.Constraint("PointOnObject", 0, 3, -1),
    Sketcher.Constraint("Diameter", 0, Q("2.2 mm")),
    Sketcher.Constraint("DistanceX", 0, 3, -1, 1, Q("10 mm")),
    Sketcher.Constraint("DistanceX", 1, 3, -1, 1, Q("5 mm")),
    Sketcher.Constraint("DistanceY", 2, 3, 4, 3, Q("17.320508 mm")),
])
sketch3.setExpression("Constraints[10]", "Params.sketch3_diameter")
pocket1 = body.newObject("PartDesign::Pocket", "Pocket")
pocket1.Profile = sketch3
pocket1.Type = "ThroughAll"
pocket1.Reversed = True

# Sketch on XZ plane
sketch4 = body.newObject("Sketcher::SketchObject", "Sketch003")
sketch4.AttachmentSupport = (doc.getObject("XZ_Plane"), [""])
sketch4.MapMode = "FlatFace"
sketch4.AttachmentOffset = App.Placement(Vector(0, 0, -1.6), App.Rotation())
sketch4.addGeometry([
    Part.LineSegment(Vector(-17.320508, -22, 0), Vector(-27.712813, -4, 0)),  # 0
    Part.BSplineCurve([Vector(-27.712813, -4, 0), Vector(-20.556841, -3.218521, 0), Vector(-13.400368, -4, 0)], [3, 3], [0, 1], False, 2, [1, 1, 1], False),  # 1
    Part.LineSegment(Vector(-13.400368, -4, 0), Vector(-10.164285, -9.605059, 0)),  # 2
    Part.BSplineCurve([Vector(-17.320508, -22, 0), Vector(-13.058339, -16.197471, 0), Vector(-10.164285, -9.605059, 0)], [3, 3], [0, 1], False, 2, [1, 1, 1], False),  # 3
    Part.LineSegment(Vector(-3.236082, -13.605059, 0), Vector(3.236082, -13.605059, 0)),  # 4
    Part.BSplineCurve([Vector(10.392305, -26, 0), Vector(7.498252, -19.407588, 0), Vector(3.236082, -13.605059, 0)], [3, 3], [0, 1], False, 2, [1, 1, 1], False),  # 5
    Part.LineSegment(Vector(10.392305, -26, 0), Vector(-10.392305, -26, 0)),  # 6
    Part.BSplineCurve([Vector(-10.392305, -26, 0), Vector(-7.4911, -19.412007, 0), Vector(-3.236082, -13.605059, 0)], [3, 3], [0, 1], False, 2, [1, 1, 1], False),  # 7
    Part.LineSegment(Vector(10.164285, -9.605059, 0), Vector(13.400368, -4, 0)),  # 8
    Part.BSplineCurve([Vector(27.712813, -4, 0), Vector(20.55659, -3.210118, 0), Vector(13.400368, -4, 0)], [3, 3], [0, 1], False, 2, [1, 1, 1], False),  # 9
    Part.LineSegment(Vector(27.712813, -4, 0), Vector(17.320508, -22, 0)),  # 10
    Part.BSplineCurve([Vector(17.320508, -22, 0), Vector(13.065741, -16.193486, 0), Vector(10.164285, -9.605059, 0)], [3, 3], [0, 1], False, 2, [1, 1, 1], False),  # 11
    Part.LineSegment(Vector(13.400368, 4, 0), Vector(10.164285, 9.605059, 0)),  # 12
    Part.BSplineCurve([Vector(17.320508, 22, 0), Vector(13.058339, 16.197471, 0), Vector(10.164285, 9.605059, 0)], [3, 3], [0, 1], False, 2, [1, 1, 1], False),  # 13
    Part.LineSegment(Vector(17.320508, 22, 0), Vector(27.712813, 4, 0)),  # 14
    Part.BSplineCurve([Vector(27.712813, 4, 0), Vector(20.556841, 3.218521, 0), Vector(13.400368, 4, 0)], [3, 3], [0, 1], False, 2, [1, 1, 1], False),  # 15
    Part.LineSegment(Vector(3.236082, 13.605059, 0), Vector(-3.236082, 13.605059, 0)),  # 16
    Part.BSplineCurve([Vector(-10.392305, 26, 0), Vector(-7.498252, 19.407588, 0), Vector(-3.236082, 13.605059, 0)], [3, 3], [0, 1], False, 2, [1, 1, 1], False),  # 17
    Part.LineSegment(Vector(-10.392305, 26, 0), Vector(10.392305, 26, 0)),  # 18
    Part.BSplineCurve([Vector(10.392305, 26, 0), Vector(7.4911, 19.412007, 0), Vector(3.236082, 13.605059, 0)], [3, 3], [0, 1], False, 2, [1, 1, 1], False),  # 19
    Part.LineSegment(Vector(-10.164285, 9.605059, 0), Vector(-13.400368, 4, 0)),  # 20
    Part.BSplineCurve([Vector(-27.712813, 4, 0), Vector(-20.55659, 3.210118, 0), Vector(-13.400368, 4, 0)], [3, 3], [0, 1], False, 2, [1, 1, 1], False),  # 21
    Part.LineSegment(Vector(-27.712813, 4, 0), Vector(-17.320508, 22, 0)),  # 22
    Part.BSplineCurve([Vector(-17.320508, 22, 0), Vector(-13.065741, 16.193486, 0), Vector(-10.164285, 9.605059, 0)], [3, 3], [0, 1], False, 2, [1, 1, 1], False),  # 23
], False)
sketch4.addConstraint([
    Sketcher.Constraint("Block", 1),
    Sketcher.Constraint("Block", 3),
    Sketcher.Constraint("Block", 5),
    Sketcher.Constraint("Block", 7),
    Sketcher.Constraint("Block", 9),
    Sketcher.Constraint("Block", 11),
    Sketcher.Constraint("Block", 13),
    Sketcher.Constraint("Block", 15),
    Sketcher.Constraint("Block", 17),
    Sketcher.Constraint("Block", 19),
    Sketcher.Constraint("Block", 21),
    Sketcher.Constraint("Block", 23),
    Sketcher.Constraint("Coincident", 0, 2, 1, 1),
    Sketcher.Constraint("Coincident", 1, 2, 2, 1),
    Sketcher.Constraint("Coincident", 2, 2, 3, 2),
    Sketcher.Constraint("Coincident", 3, 1, 0, 1),
    Sketcher.Constraint("Coincident", 4, 2, 5, 2),
    Sketcher.Constraint("Coincident", 5, 1, 6, 1),
    Sketcher.Constraint("Coincident", 6, 2, 7, 1),
    Sketcher.Constraint("Coincident", 7, 2, 4, 1),
    Sketcher.Constraint("Coincident", 8, 2, 9, 2),
    Sketcher.Constraint("Coincident", 9, 1, 10, 1),
    Sketcher.Constraint("Coincident", 10, 2, 11, 1),
    Sketcher.Constraint("Coincident", 11, 2, 8, 1),
    Sketcher.Constraint("Coincident", 12, 2, 13, 2),
    Sketcher.Constraint("Coincident", 13, 1, 14, 1),
    Sketcher.Constraint("Coincident", 14, 2, 15, 1),
    Sketcher.Constraint("Coincident", 15, 2, 12, 1),
    Sketcher.Constraint("Coincident", 16, 2, 17, 2),
    Sketcher.Constraint("Coincident", 17, 1, 18, 1),
    Sketcher.Constraint("Coincident", 18, 2, 19, 1),
    Sketcher.Constraint("Coincident", 19, 2, 16, 1),
    Sketcher.Constraint("Coincident", 20, 2, 21, 2),
    Sketcher.Constraint("Coincident", 21, 1, 22, 1),
    Sketcher.Constraint("Coincident", 22, 2, 23, 1),
    Sketcher.Constraint("Coincident", 23, 2, 20, 1),
])
pocket2 = body.newObject("PartDesign::Pocket", "Pocket001")
pocket2.Profile = sketch4
pocket2.Type = "ThroughAll"
pocket2.Reversed = True
doc.recompute()

fillet = body.newObject("PartDesign::Fillet", "Fillet")
fillet.Base = (pocket2, edges_at(pocket2, [(0, 0.8, -10.261)]))
fillet.setExpression("Radius", "Params.fillet_radius")
doc.recompute()

fillet2 = body.newObject("PartDesign::Fillet", "Fillet001")
fillet2.Base = (fillet, edges_at(fillet, [(-8.886, 0.8, -5.131)]))
fillet2.setExpression("Radius", "Params.fillet2_radius")
doc.recompute()

fillet3 = body.newObject("PartDesign::Fillet", "Fillet002")
fillet3.Base = (fillet2, edges_at(fillet2, [(8.886, 0.8, -5.131)]))
fillet3.setExpression("Radius", "Params.fillet3_radius")
doc.recompute()

fillet4 = body.newObject("PartDesign::Fillet", "Fillet003")
fillet4.Base = (fillet3, edges_at(fillet3, [(8.886, 0.8, 5.131)]))
fillet4.setExpression("Radius", "Params.fillet4_radius")
doc.recompute()

fillet5 = body.newObject("PartDesign::Fillet", "Fillet004")
fillet5.Base = (fillet4, edges_at(fillet4, [(0, 0.8, 10.261)]))
fillet5.setExpression("Radius", "Params.fillet5_radius")
doc.recompute()

fillet6 = body.newObject("PartDesign::Fillet", "Fillet005")
fillet6.Base = (fillet5, edges_at(fillet5, [(-8.886, 0.8, 5.131)]))
fillet6.setExpression("Radius", "Params.fillet6_radius")
doc.recompute()

fillet7 = body.newObject("PartDesign::Fillet", "Fillet006")
fillet7.Base = (fillet6, edges_at(fillet6, [
    (17.321, 0.8, -22),
    (27.713, 0.8, -4),
    (27.713, 0.8, 4),
    (17.321, 0.8, 22),
    (10.392, 0.8, 26),
    (-10.392, 0.8, 26),
    (-17.321, 0.8, 22),
    (-27.713, 0.8, 4),
    (-27.713, 0.8, -4),
    (-17.321, 0.8, -22),
    (10.392, 0.8, -26),
    (-10.392, 0.8, -26),
]))
fillet7.setExpression("Radius", "Params.fillet7_radius")

doc.recompute()
